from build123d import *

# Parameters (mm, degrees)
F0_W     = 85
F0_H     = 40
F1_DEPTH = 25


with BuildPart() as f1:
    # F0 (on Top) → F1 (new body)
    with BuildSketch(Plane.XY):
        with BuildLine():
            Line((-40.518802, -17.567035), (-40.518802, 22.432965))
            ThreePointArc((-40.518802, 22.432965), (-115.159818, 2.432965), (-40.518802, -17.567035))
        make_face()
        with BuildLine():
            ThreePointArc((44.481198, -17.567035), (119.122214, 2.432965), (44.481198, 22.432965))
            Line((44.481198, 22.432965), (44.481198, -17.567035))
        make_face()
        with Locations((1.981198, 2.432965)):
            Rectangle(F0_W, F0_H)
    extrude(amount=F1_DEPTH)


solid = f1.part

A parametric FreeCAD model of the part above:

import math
import FreeCAD as App
import Part
import Sketcher
from FreeCAD import Vector

doc = App.newDocument("Part")
params = doc.addObject("Spreadsheet::Sheet", "Params")
for row, (alias, value) in enumerate([
    ("sketch1_radius", "40 mm"),
    ("sketch1_width", "85 mm"),
    ("sketch1_height", "20 mm"),
    ("pad1_length", "25 mm"),
], start=1):
    params.set(f"A{row}", alias)
    params.set(f"B{row}", "=" + value)
    params.setAlias(f"B{row}", alias)

body = doc.addObject("PartDesign::Body", "Body")

sketch1 = body.newObject("Sketcher::SketchObject", "Sketch")
sketch1.AttachmentSupport = (doc.getObject("XY_Plane"), [""])
sketch1.MapMode = "FlatFace"
sketch1.addGeometry(Part.ArcOfCircle(Part.Circle(Vector(-75.159818, 2.432965, 0), Vector(0, 0, 1), 40), math.radians(30), math.radians(330)), False)
sketch1.addGeometry(Part.LineSegment(Vector(-40.518802, -17.567035, 0), Vector(44.481198, -17.567035, 0)), False)
sketch1.addGeometry(Part.ArcOfCircle(Part.Circle(Vector(79.122214, 2.432965, 0), Vector(0, 0, 1), 40), math.radians(-150), math.radians(150)), False)
sketch1.addGeometry(Part.LineSegment(Vector(44.481198, 22.432965, 0), Vector(-40.518802, 22.432965, 0)), False)
sketch1.addConstraint(Sketcher.Constraint("Coincident", 0, 2, 1, 1))
sketch1.addConstraint(Sketcher.Constraint("Coincident", 1, 2, 2, 1))
sketch1.addConstraint(Sketcher.Constraint("Coincident", 2, 2, 3, 1))
sketch1.addConstraint(Sketcher.Constraint("Coincident", 3, 2, 0, 1))
sketch1.addConstraint(Sketcher.Constraint("Horizontal", 1))
sketch1.addConstraint(Sketcher.Constraint("Horizontal", 3))
sketch1.addConstraint(Sketcher.Constraint("Equal", 0, 2))
sketch1.addConstraint(Sketcher.Constraint("Horizontal", 0, 3, 2, 3))
sketch1.addConstraint(Sketcher.Constraint("Vertical", 1, 2, 2, 2))
sketch1.addConstraint(Sketcher.Constraint("Radius", 0, 40.0))
sketch1.addConstraint(Sketcher.Constraint("DistanceX", 1, 1, 1, 2, 85.0))
sketch1.addConstraint(Sketcher.Constraint("DistanceY", 0, 2, 0, 3, 20.0))
sketch1.addConstraint(Sketcher.Constraint("DistanceX", 0, 2, -1, 1, 40.518802))
sketch1.addConstraint(Sketcher.Constraint("DistanceY", -1, 1, 0, 3, 2.432965))
sketch1.setExpression("Constraints[9]", "Params.sketch1_radius")
sketch1.setExpression("Constraints[10]", "Params.sketch1_width")
sketch1.setExpression("Constraints[11]", "Params.sketch1_height")
pad1 = body.newObject("PartDesign::Pad", "Pad")
pad1.Profile = sketch1
pad1.setExpression("Length", "Params.pad1_length")

doc.recompute()
